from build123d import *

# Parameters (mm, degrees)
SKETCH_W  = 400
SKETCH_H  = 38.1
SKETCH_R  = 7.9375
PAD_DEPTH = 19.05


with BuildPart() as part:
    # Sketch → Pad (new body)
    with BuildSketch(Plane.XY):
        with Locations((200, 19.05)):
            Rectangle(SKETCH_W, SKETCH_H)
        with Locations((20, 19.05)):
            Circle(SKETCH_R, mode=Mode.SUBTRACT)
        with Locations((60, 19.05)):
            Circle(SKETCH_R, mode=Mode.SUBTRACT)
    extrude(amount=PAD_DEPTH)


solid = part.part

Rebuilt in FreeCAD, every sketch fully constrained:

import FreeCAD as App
import Part
import Sketcher

V = App.Vector
Q = App.Units.Quantity

doc = App.newDocument("Part")
body = doc.addObject("PartDesign::Body", "Body")

sketch1 = body.newObject("Sketcher::SketchObject", "Sketch")
sketch1.AttachmentSupport = (doc.getObject("XY_Plane"), [""])
sketch1.MapMode = "FlatFace"
sketch1.addGeometry(Part.LineSegment(V(0, 38, 0), V(0, 0, 0)), False)
sketch1.addGeometry(Part.LineSegment(V(0, 0, 0), V(400, 0, 0)), False)
sketch1.addGeometry(Part.LineSegment(V(400, 0, 0), V(400, 38, 0)), False)
sketch1.addGeometry(Part.LineSegment(V(400, 38, 0), V(0, 38, 0)), False)
sketch1.addGeometry(Part.Circle(V(20, 19, 0), V(0, 0, 1), 8), False)
sketch1.addGeometry(Part.Circle(V(60, 19, 0), V(0, 0, 1), 8), False)
sketch1.addConstraint(Sketcher.Constraint("Coincident", 0, 2, 1, 1))
sketch1.addConstraint(Sketcher.Constraint("Coincident", 1, 2, 2, 1))
sketch1.addConstraint(Sketcher.Constraint("Coincident", 2, 2, 3, 1))
sketch1.addConstraint(Sketcher.Constraint("Coincident", 3, 2, 0, 1))
sketch1.addConstraint(Sketcher.Constraint("Vertical", 0))
sketch1.addConstraint(Sketcher.Constraint("Horizontal", 1))
sketch1.addConstraint(Sketcher.Constraint("Vertical", 2))
sketch1.addConstraint(Sketcher.Constraint("Horizontal", 3))
sketch1.addConstraint(Sketcher.Constraint("Coincident", 0, 2, -1, 1))
sketch1.addConstraint(Sketcher.Constraint("Equal", 4, 5))
sketch1.addConstraint(Sketcher.Constraint("Horizontal", 4, 3, 5, 3))
sketch1.addConstraint(Sketcher.Constraint("Diameter", 4, Q("0.625 in")))
sketch1.addConstraint(Sketcher.Constraint("DistanceY", 0, 2, 0, 1, Q("1.5 in")))
sketch1.addConstraint(Sketcher.Constraint("DistanceY", -1, 1, 4, 3, Q("0.75 in")))
sketch1.addConstraint(Sketcher.Constraint("DistanceX", 1, 1, 1, 2, 400.0))
sketch1.addConstraint(Sketcher.Constraint("DistanceX", -1, 1, 4, 3, 20.0))
sketch1.addConstraint(Sketcher.Constraint("DistanceX", -1, 1, 5, 3, 60.0))
pad1 = body.newObject("PartDesign::Pad", "Pad")
pad1.Profile = sketch1
pad1.Length = Q("0.75 in")

doc.recompute()
